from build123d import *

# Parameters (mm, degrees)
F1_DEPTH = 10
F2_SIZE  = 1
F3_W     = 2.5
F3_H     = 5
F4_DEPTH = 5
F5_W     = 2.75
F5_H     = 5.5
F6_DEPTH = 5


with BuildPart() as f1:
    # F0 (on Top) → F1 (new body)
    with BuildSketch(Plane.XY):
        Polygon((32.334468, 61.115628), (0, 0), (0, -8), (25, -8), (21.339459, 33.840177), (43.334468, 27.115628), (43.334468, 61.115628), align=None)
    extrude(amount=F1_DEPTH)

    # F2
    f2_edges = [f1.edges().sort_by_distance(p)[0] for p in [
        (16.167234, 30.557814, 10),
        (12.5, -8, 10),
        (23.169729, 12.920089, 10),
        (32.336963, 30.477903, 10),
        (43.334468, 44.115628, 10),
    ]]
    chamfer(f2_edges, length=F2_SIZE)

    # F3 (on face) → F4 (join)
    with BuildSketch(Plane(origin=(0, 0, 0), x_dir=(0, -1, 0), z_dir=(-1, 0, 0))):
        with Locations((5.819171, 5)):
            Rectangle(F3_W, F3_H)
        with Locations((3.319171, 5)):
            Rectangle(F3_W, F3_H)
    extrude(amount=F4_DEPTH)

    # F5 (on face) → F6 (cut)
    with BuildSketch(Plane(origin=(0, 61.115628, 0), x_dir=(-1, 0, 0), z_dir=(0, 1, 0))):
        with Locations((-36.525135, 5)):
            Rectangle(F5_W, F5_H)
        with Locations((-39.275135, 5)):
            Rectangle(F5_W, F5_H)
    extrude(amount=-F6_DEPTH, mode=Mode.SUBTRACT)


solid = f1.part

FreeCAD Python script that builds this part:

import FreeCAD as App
import Part
import Sketcher
Q = App.Units.Quantity


def edges_at(feature, points):
    """Names of the edges that pass closest to the given points."""
    edges = feature.Shape.Edges
    near = lambda p: min(range(len(edges)), key=lambda i: edges[i].distToShape(Part.Vertex(*p))[0])
    return sorted({f"Edge{near(p) + 1}" for p in points})


def add_polygon(sketch, points):
    """Adds a closed chain of lines whose ends are joined by coincident constraints."""
    first, n = sketch.GeometryCount, len(points)
    for a, b in zip(points, points[1:] + points[:1]):
        sketch.addGeometry(Part.LineSegment(App.Vector(*a, 0), App.Vector(*b, 0)), False)
    for i in range(n):
        sketch.addConstraint(Sketcher.Constraint("Coincident", first + i, 2, first + (i + 1) % n, 1))

doc = App.newDocument("Part")
body = doc.addObject("PartDesign::Body", "Body")

sketch1 = body.newObject("Sketcher::SketchObject", "Sketch")
sketch1.AttachmentSupport = (doc.getObject("XY_Plane"), [""])
sketch1.MapMode = "FlatFace"
add_polygon(sketch1, [(32, 61), (0, 0), (0, -8), (25, -8), (21, 34), (43, 27), (43, 61)])
sketch1.addConstraint([
    Sketcher.Constraint("Vertical", 1),
    Sketcher.Constraint("Horizontal", 2),
    Sketcher.Constraint("Vertical", 5),
    Sketcher.Constraint("Horizontal", 6),
    Sketcher.Constraint("Coincident", 0, 2, -1, 1),
    Sketcher.Constraint("DistanceX", 2, 1, 2, 2, 25.0),
    Sketcher.Constraint("DistanceX", 6, 2, 6, 1, 11.0),
    Sketcher.Constraint("DistanceY", 1, 2, 1, 1, 8.0),
    Sketcher.Constraint("DistanceY", 5, 1, 5, 2, 34.0),
    Sketcher.Constraint("Angle", 3, Q("95 deg")),
    Sketcher.Constraint("Angle", 4, Q("-17 deg")),
    Sketcher.Constraint("Distance", 3, 42.0),
    Sketcher.Constraint("Distance", 4, 23.0),
])
pad1 = body.newObject("PartDesign::Pad", "Pad")
pad1.Profile = sketch1
pad1.Length = 10
doc.recompute()

chamfer = body.newObject("PartDesign::Chamfer", "Chamfer")
chamfer.Base = (pad1, edges_at(pad1, [
    (16.167, 30.558, 10),
    (12.5, -8, 10),
    (23.17, 12.92, 10),
    (32.337, 30.478, 10),
    (43.334, 44.116, 10),
]))
chamfer.Size = 1

sketch2 = body.newObject("Sketcher::SketchObject", "Sketch001")
sketch2.AttachmentSupport = (doc.getObject("YZ_Plane"), [""])
sketch2.MapMode = "FlatFace"
add_polygon(sketch2, [(-7, 2), (-7, 8), (-2, 8), (-2, 2)])
sketch2.addConstraint([
    Sketcher.Constraint("Vertical", 0),
    Sketcher.Constraint("Horizontal", 1),
    Sketcher.Constraint("Vertical", 2),
    Sketcher.Constraint("Horizontal", 3),
    Sketcher.Constraint("Equal", 3, 0),
    Sketcher.Constraint("DistanceX", 1, 1, 1, 2, 5.0),
    Sketcher.Constraint("DistanceY", -1, 1, 0, 2, 7.5),
    Sketcher.Constraint("DistanceX", 0, 2, -1, 1, 7.069171),
])
pad2 = body.newObject("PartDesign::Pad", "Pad001")
pad2.Profile = sketch2
pad2.Length = 5
pad2.Reversed = True

sketch3 = body.newObject("Sketcher::SketchObject", "Sketch002")
sketch3.AttachmentSupport = (doc.getObject("XZ_Plane"), [""])
sketch3.MapMode = "FlatFace"
sketch3.AttachmentOffset = App.Placement(App.Vector(0, 0, -61.115628), App.Rotation())
add_polygon(sketch3, [(35, 2), (35, 8), (41, 8), (41, 2)])
sketch3.addConstraint([
    Sketcher.Constraint("Vertical", 0),
    Sketcher.Constraint("Horizontal", 1),
    Sketcher.Constraint("Vertical", 2),
    Sketcher.Constraint("Horizontal", 3),
    Sketcher.Constraint("Equal", 3, 0),
    Sketcher.Constraint("DistanceX", 1, 1, 1, 2, 5.5),
    Sketcher.Constraint("DistanceY", -1, 1, 0, 2, 7.75),
    Sketcher.Constraint("DistanceX", -1, 1, 0, 2, 35.150135),
])
pocket1 = body.newObject("PartDesign::Pocket", "Pocket")
pocket1.Profile = sketch3
pocket1.Length = 5
pocket1.Reversed = True

doc.recompute()
